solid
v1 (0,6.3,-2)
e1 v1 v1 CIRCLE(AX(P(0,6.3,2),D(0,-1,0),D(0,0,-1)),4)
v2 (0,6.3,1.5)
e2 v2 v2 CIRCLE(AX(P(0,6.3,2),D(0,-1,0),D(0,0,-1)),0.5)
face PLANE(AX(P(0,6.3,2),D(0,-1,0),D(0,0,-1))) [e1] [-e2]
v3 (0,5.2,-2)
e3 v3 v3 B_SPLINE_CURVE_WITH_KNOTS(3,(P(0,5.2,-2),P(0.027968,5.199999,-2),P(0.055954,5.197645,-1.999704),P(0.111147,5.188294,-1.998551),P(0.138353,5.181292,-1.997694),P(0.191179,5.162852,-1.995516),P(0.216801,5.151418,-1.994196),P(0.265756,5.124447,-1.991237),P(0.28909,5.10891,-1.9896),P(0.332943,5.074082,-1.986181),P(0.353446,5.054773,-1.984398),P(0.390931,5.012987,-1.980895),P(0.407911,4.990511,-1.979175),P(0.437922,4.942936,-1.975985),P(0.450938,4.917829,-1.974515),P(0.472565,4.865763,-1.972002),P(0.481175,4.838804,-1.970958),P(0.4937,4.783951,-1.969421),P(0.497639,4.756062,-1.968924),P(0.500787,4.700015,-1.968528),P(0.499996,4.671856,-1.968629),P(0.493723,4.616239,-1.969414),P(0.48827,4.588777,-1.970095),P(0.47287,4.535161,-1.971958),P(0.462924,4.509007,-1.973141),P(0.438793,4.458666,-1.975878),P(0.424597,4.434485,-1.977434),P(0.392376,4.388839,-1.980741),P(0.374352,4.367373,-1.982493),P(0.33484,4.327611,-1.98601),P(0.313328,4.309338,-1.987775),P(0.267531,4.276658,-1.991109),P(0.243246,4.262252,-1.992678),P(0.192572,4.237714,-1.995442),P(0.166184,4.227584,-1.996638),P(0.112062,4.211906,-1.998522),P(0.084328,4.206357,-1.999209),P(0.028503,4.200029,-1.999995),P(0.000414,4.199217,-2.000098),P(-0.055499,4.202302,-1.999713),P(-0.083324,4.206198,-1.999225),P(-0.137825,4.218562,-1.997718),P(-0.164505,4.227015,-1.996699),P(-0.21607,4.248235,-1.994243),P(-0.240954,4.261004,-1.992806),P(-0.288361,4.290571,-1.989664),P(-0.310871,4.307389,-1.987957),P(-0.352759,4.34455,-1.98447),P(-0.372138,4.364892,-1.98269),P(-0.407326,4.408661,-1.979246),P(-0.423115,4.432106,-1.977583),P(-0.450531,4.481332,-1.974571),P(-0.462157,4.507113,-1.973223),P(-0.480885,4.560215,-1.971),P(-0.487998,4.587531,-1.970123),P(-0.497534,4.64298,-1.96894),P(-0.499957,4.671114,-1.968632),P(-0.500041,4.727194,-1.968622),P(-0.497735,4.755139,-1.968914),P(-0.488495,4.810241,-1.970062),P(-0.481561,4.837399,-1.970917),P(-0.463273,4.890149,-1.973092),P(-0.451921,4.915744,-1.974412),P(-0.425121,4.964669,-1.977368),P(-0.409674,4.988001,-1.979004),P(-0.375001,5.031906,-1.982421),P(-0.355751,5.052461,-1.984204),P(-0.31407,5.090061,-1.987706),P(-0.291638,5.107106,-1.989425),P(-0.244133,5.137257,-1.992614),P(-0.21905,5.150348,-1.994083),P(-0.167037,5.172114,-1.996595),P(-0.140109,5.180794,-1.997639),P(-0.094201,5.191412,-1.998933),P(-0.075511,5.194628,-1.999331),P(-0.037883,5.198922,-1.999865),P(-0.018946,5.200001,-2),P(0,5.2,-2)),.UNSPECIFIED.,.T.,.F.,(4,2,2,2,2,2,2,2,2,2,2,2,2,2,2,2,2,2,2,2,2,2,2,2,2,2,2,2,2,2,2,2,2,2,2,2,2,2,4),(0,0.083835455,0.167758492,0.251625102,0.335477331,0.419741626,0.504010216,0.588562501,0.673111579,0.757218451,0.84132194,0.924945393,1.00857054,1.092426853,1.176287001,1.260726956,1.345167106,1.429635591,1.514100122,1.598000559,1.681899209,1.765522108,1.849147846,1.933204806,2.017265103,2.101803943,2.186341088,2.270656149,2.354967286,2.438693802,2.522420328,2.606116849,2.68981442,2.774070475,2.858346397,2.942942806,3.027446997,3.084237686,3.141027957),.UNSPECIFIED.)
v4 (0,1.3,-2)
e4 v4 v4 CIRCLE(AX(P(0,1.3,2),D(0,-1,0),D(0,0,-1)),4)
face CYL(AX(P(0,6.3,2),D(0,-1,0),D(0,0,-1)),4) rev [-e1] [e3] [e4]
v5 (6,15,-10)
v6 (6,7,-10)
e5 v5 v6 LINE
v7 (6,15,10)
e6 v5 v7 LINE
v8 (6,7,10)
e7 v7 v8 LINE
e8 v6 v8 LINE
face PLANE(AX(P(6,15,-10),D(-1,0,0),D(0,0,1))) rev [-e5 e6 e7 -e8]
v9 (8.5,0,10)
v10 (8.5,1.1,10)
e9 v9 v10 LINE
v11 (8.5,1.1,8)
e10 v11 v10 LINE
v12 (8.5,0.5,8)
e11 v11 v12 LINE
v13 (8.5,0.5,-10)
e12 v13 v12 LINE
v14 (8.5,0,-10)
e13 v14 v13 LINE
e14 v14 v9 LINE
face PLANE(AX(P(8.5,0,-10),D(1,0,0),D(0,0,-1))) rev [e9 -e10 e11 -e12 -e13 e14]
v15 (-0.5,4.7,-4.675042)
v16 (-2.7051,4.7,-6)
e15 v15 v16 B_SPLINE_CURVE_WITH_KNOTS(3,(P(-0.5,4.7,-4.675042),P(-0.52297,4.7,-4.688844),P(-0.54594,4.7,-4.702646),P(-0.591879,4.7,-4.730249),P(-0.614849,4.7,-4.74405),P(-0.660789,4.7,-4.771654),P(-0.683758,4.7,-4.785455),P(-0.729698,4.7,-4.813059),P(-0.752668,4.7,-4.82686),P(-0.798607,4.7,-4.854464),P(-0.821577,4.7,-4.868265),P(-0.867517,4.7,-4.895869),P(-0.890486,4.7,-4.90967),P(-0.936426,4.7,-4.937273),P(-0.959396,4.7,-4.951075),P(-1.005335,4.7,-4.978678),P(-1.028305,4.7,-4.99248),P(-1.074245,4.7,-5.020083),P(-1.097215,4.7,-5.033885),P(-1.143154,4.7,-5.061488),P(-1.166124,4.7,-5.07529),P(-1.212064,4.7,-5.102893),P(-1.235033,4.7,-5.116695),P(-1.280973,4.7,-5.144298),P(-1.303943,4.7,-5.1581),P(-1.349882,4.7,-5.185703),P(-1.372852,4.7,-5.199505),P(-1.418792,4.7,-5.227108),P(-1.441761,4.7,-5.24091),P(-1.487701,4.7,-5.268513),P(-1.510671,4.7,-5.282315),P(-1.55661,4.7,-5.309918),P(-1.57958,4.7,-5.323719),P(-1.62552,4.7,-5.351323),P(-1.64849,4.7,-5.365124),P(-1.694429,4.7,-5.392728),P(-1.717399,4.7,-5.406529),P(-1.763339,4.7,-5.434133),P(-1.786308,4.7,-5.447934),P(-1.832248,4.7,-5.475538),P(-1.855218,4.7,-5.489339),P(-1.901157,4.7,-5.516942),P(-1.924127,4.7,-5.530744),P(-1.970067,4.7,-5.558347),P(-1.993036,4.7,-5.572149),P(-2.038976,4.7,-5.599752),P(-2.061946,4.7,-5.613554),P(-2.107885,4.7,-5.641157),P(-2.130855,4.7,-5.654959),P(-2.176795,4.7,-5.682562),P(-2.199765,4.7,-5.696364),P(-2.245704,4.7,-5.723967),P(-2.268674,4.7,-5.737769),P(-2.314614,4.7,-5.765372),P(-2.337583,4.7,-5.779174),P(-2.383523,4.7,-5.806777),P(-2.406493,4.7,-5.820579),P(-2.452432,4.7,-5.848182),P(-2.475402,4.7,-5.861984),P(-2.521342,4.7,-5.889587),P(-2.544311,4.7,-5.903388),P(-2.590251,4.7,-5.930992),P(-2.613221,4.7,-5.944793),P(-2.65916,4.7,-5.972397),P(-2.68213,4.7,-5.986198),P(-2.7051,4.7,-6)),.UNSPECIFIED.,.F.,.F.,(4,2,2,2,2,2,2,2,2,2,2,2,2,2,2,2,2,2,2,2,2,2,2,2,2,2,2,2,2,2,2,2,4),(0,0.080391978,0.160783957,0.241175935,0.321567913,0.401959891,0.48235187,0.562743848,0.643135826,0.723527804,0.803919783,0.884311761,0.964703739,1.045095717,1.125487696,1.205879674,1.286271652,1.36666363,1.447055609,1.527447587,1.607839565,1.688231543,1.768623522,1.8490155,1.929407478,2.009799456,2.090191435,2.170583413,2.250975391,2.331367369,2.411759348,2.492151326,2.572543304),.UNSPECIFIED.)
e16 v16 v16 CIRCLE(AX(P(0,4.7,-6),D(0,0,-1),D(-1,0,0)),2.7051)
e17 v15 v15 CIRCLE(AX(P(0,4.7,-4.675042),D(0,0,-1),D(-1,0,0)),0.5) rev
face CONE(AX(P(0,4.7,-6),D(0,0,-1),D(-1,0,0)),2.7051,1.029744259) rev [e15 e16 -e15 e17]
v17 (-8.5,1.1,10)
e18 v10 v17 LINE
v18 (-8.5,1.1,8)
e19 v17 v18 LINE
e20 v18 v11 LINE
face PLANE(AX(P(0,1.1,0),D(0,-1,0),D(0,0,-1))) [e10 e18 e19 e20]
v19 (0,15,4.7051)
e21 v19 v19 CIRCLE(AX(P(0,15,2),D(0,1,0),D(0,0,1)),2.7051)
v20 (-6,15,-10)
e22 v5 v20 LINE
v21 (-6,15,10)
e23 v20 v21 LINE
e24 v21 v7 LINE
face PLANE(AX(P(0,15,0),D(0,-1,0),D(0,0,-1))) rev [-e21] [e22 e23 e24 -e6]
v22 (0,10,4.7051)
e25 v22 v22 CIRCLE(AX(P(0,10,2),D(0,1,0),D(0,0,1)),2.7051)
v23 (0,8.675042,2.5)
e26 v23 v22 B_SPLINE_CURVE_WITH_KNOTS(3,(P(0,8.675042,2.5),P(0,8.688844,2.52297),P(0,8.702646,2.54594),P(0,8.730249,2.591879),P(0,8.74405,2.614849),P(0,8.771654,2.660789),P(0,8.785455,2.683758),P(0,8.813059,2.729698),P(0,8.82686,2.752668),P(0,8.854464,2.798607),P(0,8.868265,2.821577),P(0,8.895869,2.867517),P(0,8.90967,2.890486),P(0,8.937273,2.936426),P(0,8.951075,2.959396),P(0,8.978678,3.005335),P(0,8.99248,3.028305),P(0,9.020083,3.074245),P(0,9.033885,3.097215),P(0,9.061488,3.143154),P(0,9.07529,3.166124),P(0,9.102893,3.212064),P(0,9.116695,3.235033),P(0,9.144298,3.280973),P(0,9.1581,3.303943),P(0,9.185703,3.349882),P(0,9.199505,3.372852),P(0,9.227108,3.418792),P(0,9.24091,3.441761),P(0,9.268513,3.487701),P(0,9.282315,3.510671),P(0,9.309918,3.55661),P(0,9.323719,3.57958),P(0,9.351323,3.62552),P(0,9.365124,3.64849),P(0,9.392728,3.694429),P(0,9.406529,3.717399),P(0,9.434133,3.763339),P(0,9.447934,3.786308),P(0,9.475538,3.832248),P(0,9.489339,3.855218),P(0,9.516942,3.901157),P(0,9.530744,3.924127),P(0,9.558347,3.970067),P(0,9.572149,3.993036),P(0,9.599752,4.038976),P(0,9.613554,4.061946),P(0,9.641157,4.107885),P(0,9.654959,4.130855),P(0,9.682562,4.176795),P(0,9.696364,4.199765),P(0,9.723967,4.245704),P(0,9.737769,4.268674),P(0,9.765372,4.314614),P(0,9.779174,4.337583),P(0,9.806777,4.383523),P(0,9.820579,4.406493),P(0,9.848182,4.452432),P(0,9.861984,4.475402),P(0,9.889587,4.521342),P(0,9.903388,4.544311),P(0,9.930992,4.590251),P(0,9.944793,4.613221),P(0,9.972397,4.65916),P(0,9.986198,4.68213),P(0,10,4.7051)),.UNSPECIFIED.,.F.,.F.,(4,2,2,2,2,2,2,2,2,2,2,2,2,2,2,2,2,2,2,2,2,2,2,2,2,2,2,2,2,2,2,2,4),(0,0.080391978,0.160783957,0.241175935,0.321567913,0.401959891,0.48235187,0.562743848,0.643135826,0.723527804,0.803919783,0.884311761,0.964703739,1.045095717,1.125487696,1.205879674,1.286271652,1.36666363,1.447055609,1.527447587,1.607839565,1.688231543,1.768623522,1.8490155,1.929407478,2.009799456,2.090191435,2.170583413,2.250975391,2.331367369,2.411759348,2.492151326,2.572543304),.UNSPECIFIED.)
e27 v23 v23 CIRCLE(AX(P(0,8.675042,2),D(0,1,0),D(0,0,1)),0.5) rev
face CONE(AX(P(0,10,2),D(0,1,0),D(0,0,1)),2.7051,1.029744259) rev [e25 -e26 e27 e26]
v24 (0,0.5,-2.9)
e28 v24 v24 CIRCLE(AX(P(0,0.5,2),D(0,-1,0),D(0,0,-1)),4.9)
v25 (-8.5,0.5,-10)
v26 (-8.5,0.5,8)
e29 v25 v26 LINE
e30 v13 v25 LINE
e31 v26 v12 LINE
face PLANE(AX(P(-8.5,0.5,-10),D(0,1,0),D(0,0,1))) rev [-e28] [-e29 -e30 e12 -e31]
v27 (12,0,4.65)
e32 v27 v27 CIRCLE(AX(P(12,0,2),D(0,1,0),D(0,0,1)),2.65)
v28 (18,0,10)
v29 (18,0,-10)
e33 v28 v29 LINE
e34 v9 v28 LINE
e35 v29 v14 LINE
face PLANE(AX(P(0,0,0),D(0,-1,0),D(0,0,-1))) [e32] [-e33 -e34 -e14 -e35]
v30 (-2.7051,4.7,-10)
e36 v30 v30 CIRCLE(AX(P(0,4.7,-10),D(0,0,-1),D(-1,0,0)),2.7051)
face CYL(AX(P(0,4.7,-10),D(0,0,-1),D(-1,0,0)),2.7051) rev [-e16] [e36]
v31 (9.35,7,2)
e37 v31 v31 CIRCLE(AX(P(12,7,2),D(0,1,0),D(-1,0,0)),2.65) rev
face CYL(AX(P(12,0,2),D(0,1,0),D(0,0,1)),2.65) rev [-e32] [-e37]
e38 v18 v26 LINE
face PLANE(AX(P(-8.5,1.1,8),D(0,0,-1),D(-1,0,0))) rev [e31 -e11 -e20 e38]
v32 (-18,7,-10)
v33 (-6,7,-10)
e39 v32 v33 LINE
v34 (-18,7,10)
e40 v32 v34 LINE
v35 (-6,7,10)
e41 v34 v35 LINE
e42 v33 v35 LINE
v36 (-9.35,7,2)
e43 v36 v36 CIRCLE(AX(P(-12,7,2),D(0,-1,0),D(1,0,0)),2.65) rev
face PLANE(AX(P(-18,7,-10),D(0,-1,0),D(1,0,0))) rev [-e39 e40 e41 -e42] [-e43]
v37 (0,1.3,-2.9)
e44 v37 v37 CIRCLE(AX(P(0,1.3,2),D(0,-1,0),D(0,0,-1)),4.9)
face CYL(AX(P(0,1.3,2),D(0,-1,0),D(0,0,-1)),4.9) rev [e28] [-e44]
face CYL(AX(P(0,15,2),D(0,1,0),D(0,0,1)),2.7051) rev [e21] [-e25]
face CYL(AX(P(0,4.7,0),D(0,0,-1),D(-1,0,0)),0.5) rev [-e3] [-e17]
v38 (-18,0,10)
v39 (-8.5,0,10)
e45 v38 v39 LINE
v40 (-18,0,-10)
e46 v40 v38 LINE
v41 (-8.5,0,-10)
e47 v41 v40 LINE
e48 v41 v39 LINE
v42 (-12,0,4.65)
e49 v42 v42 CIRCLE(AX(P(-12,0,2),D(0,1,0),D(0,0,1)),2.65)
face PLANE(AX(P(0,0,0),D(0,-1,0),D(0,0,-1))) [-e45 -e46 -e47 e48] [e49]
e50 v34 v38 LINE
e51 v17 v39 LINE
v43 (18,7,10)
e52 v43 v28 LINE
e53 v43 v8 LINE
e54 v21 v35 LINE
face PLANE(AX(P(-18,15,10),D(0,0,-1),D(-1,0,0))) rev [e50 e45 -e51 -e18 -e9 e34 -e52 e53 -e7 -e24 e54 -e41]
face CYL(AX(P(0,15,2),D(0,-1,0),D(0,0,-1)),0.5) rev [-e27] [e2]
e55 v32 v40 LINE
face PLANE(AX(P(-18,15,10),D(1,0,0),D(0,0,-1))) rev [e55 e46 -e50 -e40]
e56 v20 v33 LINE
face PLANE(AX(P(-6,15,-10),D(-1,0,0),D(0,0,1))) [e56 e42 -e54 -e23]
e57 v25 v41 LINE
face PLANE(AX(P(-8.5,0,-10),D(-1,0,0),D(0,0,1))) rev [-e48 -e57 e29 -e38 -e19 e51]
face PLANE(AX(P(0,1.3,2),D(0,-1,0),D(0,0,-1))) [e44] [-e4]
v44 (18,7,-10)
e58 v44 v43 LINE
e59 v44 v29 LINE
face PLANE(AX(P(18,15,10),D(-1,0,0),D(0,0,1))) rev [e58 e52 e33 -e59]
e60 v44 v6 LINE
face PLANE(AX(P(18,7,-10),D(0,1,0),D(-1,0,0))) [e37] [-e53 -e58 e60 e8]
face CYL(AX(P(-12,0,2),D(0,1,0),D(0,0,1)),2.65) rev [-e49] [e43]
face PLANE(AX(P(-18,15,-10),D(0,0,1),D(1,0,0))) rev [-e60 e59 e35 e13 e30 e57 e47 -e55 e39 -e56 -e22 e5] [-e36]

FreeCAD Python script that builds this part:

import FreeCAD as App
import Part
import Sketcher
from FreeCAD import Vector
Q = App.Units.Quantity


def add_polygon(sketch, points):
    """Adds a closed chain of lines whose ends are joined by coincident constraints."""
    first, n = sketch.GeometryCount, len(points)
    for a, b in zip(points, points[1:] + points[:1]):
        sketch.addGeometry(Part.LineSegment(App.Vector(*a, 0), App.Vector(*b, 0)), False)
    for i in range(n):
        sketch.addConstraint(Sketcher.Constraint("Coincident", first + i, 2, first + (i + 1) % n, 1))

doc = App.newDocument("Part")
body = doc.addObject("PartDesign::Body", "Body")

# Sketch on XZ plane
sketch1 = body.newObject("Sketcher::SketchObject", "Sketch")
sketch1.AttachmentSupport = (doc.getObject("XZ_Plane"), [""])
sketch1.MapMode = "FlatFace"
add_polygon(sketch1, [(-18, -10), (-18, 10), (18, 10), (18, -10)])  # lines 0-3
sketch1.addConstraint([
    Sketcher.Constraint("Vertical", 0),
    Sketcher.Constraint("Horizontal", 1),
    Sketcher.Constraint("Vertical", 2),
    Sketcher.Constraint("Horizontal", 3),
    Sketcher.Constraint("Symmetric", 0, 2, 2, 2, -1, 1),
    Sketcher.Constraint("DistanceX", 1, 1, 1, 2, Q("36 mm")),
    Sketcher.Constraint("DistanceY", 0, 1, 0, 2, Q("20 mm")),
])
pad1 = body.newObject("PartDesign::Pad", "Pad")
pad1.Profile = sketch1
pad1.Length = 15
pad1.Reversed = True

# Sketch on XZ plane
sketch2 = body.newObject("Sketcher::SketchObject", "Sketch001")
sketch2.AttachmentSupport = (doc.getObject("XZ_Plane"), [""])
sketch2.MapMode = "FlatFace"
sketch2.AttachmentOffset = App.Placement(Vector(0, 0, -15), App.Rotation())
sketch2.addGeometry([
    Part.Circle(Vector(-12, 2, 0), Vector(0, 0, 1), 2.6),
    Part.Circle(Vector(12, 2, 0), Vector(0, 0, 1), 2.6),
], False)
sketch2.addConstraint([
    Sketcher.Constraint("Equal", 0, 1),
    Sketcher.Constraint("Symmetric", 0, 3, 1, 3, -2),
    Sketcher.Constraint("Diameter", 0, Q("5.3 mm")),
    Sketcher.Constraint("DistanceX", 0, 3, -1, 1, Q("12 mm")),
    Sketcher.Constraint("DistanceY", -1, 1, 0, 3, Q("2 mm")),
])
pocket1 = body.newObject("PartDesign::Pocket", "Pocket")
pocket1.Profile = sketch2
pocket1.Type = "ThroughAll"
pocket1.Reversed = True

# Sketch on XY plane
sketch3 = body.newObject("Sketcher::SketchObject", "Sketch002")
sketch3.AttachmentSupport = (doc.getObject("XY_Plane"), [""])
sketch3.MapMode = "FlatFace"
sketch3.AttachmentOffset = App.Placement(Vector(0, 0, 10), App.Rotation())
add_polygon(sketch3, [(-18, 15), (-18, 7), (-6, 7), (-6, 15)])  # lines 0-3
add_polygon(sketch3, [(6, 15), (6, 7), (18, 7), (18, 15)])  # lines 4-7
sketch3.addConstraint([
    Sketcher.Constraint("Vertical", 0),
    Sketcher.Constraint("Horizontal", 1),
    Sketcher.Constraint("Vertical", 2),
    Sketcher.Constraint("Horizontal", 3),
    Sketcher.Constraint("Vertical", 4),
    Sketcher.Constraint("Horizontal", 5),
    Sketcher.Constraint("Vertical", 6),
    Sketcher.Constraint("Horizontal", 7),
    Sketcher.Constraint("Symmetric", 1, 2, 4, 2, -2),
    Sketcher.Constraint("Symmetric", 3, 2, 6, 2, -2),
    Sketcher.Constraint("DistanceX", 1, 1, 1, 2, Q("12 mm")),
    Sketcher.Constraint("DistanceY", 0, 2, 0, 1, Q("8 mm")),
    Sketcher.Constraint("DistanceX", 0, 2, -1, 1, Q("18 mm")),
    Sketcher.Constraint("DistanceY", -1, 1, 0, 2, Q("7 mm")),
])
pocket2 = body.newObject("PartDesign::Pocket", "Pocket001")
pocket2.Profile = sketch3
pocket2.Type = "ThroughAll"

# Sketch on XY plane
sketch4 = body.newObject("Sketcher::SketchObject", "Sketch003")
sketch4.AttachmentSupport = (doc.getObject("XY_Plane"), [""])
sketch4.MapMode = "FlatFace"
sketch4.AttachmentOffset = App.Placement(Vector(0, 0, 10), App.Rotation())
add_polygon(sketch4, [(-8.5, 0.5), (-8.5, 0), (8.5, 0), (8.5, 0.5)])  # lines 0-3
sketch4.addConstraint([
    Sketcher.Constraint("Vertical", 0),
    Sketcher.Constraint("Horizontal", 1),
    Sketcher.Constraint("Vertical", 2),
    Sketcher.Constraint("Horizontal", 3),
    Sketcher.Constraint("Symmetric", 0, 2, 1, 2, -1, 1),
    Sketcher.Constraint("DistanceX", 1, 1, 1, 2, Q("17 mm")),
    Sketcher.Constraint("DistanceY", 0, 2, 0, 1, Q("0.5 mm")),
])
pocket3 = body.newObject("PartDesign::Pocket", "Pocket002")
pocket3.Profile = sketch4
pocket3.Type = "ThroughAll"

# Sketch on XZ plane
sketch5 = body.newObject("Sketcher::SketchObject", "Sketch004")
sketch5.AttachmentSupport = (doc.getObject("XZ_Plane"), [""])
sketch5.MapMode = "FlatFace"
sketch5.AttachmentOffset = App.Placement(Vector(0, 0, -0.5), App.Rotation())
add_polygon(sketch5, [(-8.5, 10), (-8.5, 8), (8.5, 8), (8.5, 10)])  # lines 0-3
sketch5.addConstraint([
    Sketcher.Constraint("Vertical", 0),
    Sketcher.Constraint("Horizontal", 1),
    Sketcher.Constraint("Vertical", 2),
    Sketcher.Constraint("Horizontal", 3),
    Sketcher.Constraint("DistanceX", 1, 1, 1, 2, Q("17 mm")),
    Sketcher.Constraint("DistanceY", 0, 2, 0, 1, Q("2 mm")),
    Sketcher.Constraint("DistanceY", -1, 1, 0, 2, Q("8 mm")),
    Sketcher.Constraint("DistanceX", 0, 2, -1, 1, Q("8.5 mm")),
])
pocket4 = body.newObject("PartDesign::Pocket", "Pocket003")
pocket4.Profile = sketch5
pocket4.Length = 0.6

# Sketch on XZ plane
sketch6 = body.newObject("Sketcher::SketchObject", "Sketch005")
sketch6.AttachmentSupport = (doc.getObject("XZ_Plane"), [""])
sketch6.MapMode = "FlatFace"
sketch6.AttachmentOffset = App.Placement(Vector(0, 0, -0.5), App.Rotation())
sketch6.addGeometry(Part.Circle(Vector(0, 2, 0), Vector(0, 0, 1), 4.9), False)
sketch6.addConstraint([
    Sketcher.Constraint("PointOnObject", 0, 3, -2),
    Sketcher.Constraint("Diameter", 0, Q("9.8 mm")),
    Sketcher.Constraint("DistanceY", -1, 1, 0, 3, Q("2 mm")),
])
pocket5 = body.newObject("PartDesign::Pocket", "Pocket004")
pocket5.Profile = sketch6
pocket5.Length = 0.8

# Sketch on XZ plane
sketch7 = body.newObject("Sketcher::SketchObject", "Sketch006")
sketch7.AttachmentSupport = (doc.getObject("XZ_Plane"), [""])
sketch7.MapMode = "FlatFace"
sketch7.AttachmentOffset = App.Placement(Vector(0, 0, -1.3), App.Rotation())
sketch7.addGeometry(Part.Circle(Vector(0, 2, 0), Vector(0, 0, 1), 4), False)
sketch7.addConstraint([
    Sketcher.Constraint("PointOnObject", 0, 3, -2),
    Sketcher.Constraint("Diameter", 0, Q("8 mm")),
    Sketcher.Constraint("DistanceY", -1, 1, 0, 3, Q("2 mm")),
])
pocket6 = body.newObject("PartDesign::Pocket", "Pocket005")
pocket6.Profile = sketch7
pocket6.Length = 5

# Sketch on XZ plane
sketch8 = body.newObject("Sketcher::SketchObject", "Sketch007")
sketch8.AttachmentSupport = (doc.getObject("XZ_Plane"), [""])
sketch8.MapMode = "FlatFace"
sketch8.AttachmentOffset = App.Placement(Vector(0, 0, -15), App.Rotation())
sketch8.addGeometry(Part.Circle(Vector(0, 2, 0), Vector(0, 0, 1), 2.7), False)
sketch8.addConstraint([
    Sketcher.Constraint("PointOnObject", 0, 3, -2),
    Sketcher.Constraint("DistanceY", -1, 1, 0, 3, Q("2 mm")),
    Sketcher.Constraint("Diameter", 0, Q("5.4102 mm")),
])
doc.recompute()
hole = body.newObject("PartDesign::Hole", "Hole")
hole.Profile = sketch8
hole.ThreadType = "None"
hole.Diameter = 5.4102
hole.DepthType = "Dimension"
hole.Depth = 5
hole.DrillPoint = "Angled"
hole.DrillPointAngle = 118
hole.Reversed = True

# Sketch on XZ plane
sketch9 = body.newObject("Sketcher::SketchObject", "Sketch008")
sketch9.AttachmentSupport = (doc.getObject("XZ_Plane"), [""])
sketch9.MapMode = "FlatFace"
sketch9.AttachmentOffset = App.Placement(Vector(0, 0, -6.3), App.Rotation())
sketch9.addGeometry(Part.Circle(Vector(0, 2, 0), Vector(0, 0, 1), 0.5), False)
sketch9.addConstraint([
    Sketcher.Constraint("PointOnObject", 0, 3, -2),
    Sketcher.Constraint("Diameter", 0, Q("1 mm")),
    Sketcher.Constraint("DistanceY", -1, 1, 0, 3, Q("2 mm")),
])
pocket7 = body.newObject("PartDesign::Pocket", "Pocket006")
pocket7.Profile = sketch9
pocket7.Type = "ThroughAll"

# Sketch on XY plane
sketch10 = body.newObject("Sketcher::SketchObject", "Sketch009")
sketch10.AttachmentSupport = (doc.getObject("XY_Plane"), [""])
sketch10.MapMode = "FlatFace"
sketch10.AttachmentOffset = App.Placement(Vector(0, 0, -10), App.Rotation())
sketch10.addGeometry(Part.Circle(Vector(0, 4.7, 0), Vector(0, 0, 1), 2.7), False)
sketch10.addConstraint([
    Sketcher.Constraint("PointOnObject", 0, 3, -2),
    Sketcher.Constraint("Diameter", 0, Q("5.4102 mm")),
    Sketcher.Constraint("DistanceY", -1, 1, 0, 3, Q("4.7 mm")),
])
doc.recompute()
hole2 = body.newObject("PartDesign::Hole", "Hole001")
hole2.Profile = sketch10
hole2.ThreadType = "None"
hole2.Diameter = 5.4102
hole2.DepthType = "Dimension"
hole2.Depth = 4
hole2.DrillPoint = "Angled"
hole2.DrillPointAngle = 118
hole2.Reversed = True

# Sketch on XY plane
sketch11 = body.newObject("Sketcher::SketchObject", "Sketch010")
sketch11.AttachmentSupport = (doc.getObject("XY_Plane"), [""])
sketch11.MapMode = "FlatFace"
sketch11.AttachmentOffset = App.Placement(Vector(0, 0, -10), App.Rotation())
sketch11.addGeometry(Part.Circle(Vector(0, 4.7, 0), Vector(0, 0, 1), 0.5), False)
sketch11.addConstraint([
    Sketcher.Constraint("PointOnObject", 0, 3, -2),
    Sketcher.Constraint("Diameter", 0, Q("1 mm")),
    Sketcher.Constraint("DistanceY", -1, 1, 0, 3, Q("4.7 mm")),
])
pocket8 = body.newObject("PartDesign::Pocket", "Pocket007")
pocket8.Profile = sketch11
pocket8.Length = 10
pocket8.Reversed = True

doc.recompute()
